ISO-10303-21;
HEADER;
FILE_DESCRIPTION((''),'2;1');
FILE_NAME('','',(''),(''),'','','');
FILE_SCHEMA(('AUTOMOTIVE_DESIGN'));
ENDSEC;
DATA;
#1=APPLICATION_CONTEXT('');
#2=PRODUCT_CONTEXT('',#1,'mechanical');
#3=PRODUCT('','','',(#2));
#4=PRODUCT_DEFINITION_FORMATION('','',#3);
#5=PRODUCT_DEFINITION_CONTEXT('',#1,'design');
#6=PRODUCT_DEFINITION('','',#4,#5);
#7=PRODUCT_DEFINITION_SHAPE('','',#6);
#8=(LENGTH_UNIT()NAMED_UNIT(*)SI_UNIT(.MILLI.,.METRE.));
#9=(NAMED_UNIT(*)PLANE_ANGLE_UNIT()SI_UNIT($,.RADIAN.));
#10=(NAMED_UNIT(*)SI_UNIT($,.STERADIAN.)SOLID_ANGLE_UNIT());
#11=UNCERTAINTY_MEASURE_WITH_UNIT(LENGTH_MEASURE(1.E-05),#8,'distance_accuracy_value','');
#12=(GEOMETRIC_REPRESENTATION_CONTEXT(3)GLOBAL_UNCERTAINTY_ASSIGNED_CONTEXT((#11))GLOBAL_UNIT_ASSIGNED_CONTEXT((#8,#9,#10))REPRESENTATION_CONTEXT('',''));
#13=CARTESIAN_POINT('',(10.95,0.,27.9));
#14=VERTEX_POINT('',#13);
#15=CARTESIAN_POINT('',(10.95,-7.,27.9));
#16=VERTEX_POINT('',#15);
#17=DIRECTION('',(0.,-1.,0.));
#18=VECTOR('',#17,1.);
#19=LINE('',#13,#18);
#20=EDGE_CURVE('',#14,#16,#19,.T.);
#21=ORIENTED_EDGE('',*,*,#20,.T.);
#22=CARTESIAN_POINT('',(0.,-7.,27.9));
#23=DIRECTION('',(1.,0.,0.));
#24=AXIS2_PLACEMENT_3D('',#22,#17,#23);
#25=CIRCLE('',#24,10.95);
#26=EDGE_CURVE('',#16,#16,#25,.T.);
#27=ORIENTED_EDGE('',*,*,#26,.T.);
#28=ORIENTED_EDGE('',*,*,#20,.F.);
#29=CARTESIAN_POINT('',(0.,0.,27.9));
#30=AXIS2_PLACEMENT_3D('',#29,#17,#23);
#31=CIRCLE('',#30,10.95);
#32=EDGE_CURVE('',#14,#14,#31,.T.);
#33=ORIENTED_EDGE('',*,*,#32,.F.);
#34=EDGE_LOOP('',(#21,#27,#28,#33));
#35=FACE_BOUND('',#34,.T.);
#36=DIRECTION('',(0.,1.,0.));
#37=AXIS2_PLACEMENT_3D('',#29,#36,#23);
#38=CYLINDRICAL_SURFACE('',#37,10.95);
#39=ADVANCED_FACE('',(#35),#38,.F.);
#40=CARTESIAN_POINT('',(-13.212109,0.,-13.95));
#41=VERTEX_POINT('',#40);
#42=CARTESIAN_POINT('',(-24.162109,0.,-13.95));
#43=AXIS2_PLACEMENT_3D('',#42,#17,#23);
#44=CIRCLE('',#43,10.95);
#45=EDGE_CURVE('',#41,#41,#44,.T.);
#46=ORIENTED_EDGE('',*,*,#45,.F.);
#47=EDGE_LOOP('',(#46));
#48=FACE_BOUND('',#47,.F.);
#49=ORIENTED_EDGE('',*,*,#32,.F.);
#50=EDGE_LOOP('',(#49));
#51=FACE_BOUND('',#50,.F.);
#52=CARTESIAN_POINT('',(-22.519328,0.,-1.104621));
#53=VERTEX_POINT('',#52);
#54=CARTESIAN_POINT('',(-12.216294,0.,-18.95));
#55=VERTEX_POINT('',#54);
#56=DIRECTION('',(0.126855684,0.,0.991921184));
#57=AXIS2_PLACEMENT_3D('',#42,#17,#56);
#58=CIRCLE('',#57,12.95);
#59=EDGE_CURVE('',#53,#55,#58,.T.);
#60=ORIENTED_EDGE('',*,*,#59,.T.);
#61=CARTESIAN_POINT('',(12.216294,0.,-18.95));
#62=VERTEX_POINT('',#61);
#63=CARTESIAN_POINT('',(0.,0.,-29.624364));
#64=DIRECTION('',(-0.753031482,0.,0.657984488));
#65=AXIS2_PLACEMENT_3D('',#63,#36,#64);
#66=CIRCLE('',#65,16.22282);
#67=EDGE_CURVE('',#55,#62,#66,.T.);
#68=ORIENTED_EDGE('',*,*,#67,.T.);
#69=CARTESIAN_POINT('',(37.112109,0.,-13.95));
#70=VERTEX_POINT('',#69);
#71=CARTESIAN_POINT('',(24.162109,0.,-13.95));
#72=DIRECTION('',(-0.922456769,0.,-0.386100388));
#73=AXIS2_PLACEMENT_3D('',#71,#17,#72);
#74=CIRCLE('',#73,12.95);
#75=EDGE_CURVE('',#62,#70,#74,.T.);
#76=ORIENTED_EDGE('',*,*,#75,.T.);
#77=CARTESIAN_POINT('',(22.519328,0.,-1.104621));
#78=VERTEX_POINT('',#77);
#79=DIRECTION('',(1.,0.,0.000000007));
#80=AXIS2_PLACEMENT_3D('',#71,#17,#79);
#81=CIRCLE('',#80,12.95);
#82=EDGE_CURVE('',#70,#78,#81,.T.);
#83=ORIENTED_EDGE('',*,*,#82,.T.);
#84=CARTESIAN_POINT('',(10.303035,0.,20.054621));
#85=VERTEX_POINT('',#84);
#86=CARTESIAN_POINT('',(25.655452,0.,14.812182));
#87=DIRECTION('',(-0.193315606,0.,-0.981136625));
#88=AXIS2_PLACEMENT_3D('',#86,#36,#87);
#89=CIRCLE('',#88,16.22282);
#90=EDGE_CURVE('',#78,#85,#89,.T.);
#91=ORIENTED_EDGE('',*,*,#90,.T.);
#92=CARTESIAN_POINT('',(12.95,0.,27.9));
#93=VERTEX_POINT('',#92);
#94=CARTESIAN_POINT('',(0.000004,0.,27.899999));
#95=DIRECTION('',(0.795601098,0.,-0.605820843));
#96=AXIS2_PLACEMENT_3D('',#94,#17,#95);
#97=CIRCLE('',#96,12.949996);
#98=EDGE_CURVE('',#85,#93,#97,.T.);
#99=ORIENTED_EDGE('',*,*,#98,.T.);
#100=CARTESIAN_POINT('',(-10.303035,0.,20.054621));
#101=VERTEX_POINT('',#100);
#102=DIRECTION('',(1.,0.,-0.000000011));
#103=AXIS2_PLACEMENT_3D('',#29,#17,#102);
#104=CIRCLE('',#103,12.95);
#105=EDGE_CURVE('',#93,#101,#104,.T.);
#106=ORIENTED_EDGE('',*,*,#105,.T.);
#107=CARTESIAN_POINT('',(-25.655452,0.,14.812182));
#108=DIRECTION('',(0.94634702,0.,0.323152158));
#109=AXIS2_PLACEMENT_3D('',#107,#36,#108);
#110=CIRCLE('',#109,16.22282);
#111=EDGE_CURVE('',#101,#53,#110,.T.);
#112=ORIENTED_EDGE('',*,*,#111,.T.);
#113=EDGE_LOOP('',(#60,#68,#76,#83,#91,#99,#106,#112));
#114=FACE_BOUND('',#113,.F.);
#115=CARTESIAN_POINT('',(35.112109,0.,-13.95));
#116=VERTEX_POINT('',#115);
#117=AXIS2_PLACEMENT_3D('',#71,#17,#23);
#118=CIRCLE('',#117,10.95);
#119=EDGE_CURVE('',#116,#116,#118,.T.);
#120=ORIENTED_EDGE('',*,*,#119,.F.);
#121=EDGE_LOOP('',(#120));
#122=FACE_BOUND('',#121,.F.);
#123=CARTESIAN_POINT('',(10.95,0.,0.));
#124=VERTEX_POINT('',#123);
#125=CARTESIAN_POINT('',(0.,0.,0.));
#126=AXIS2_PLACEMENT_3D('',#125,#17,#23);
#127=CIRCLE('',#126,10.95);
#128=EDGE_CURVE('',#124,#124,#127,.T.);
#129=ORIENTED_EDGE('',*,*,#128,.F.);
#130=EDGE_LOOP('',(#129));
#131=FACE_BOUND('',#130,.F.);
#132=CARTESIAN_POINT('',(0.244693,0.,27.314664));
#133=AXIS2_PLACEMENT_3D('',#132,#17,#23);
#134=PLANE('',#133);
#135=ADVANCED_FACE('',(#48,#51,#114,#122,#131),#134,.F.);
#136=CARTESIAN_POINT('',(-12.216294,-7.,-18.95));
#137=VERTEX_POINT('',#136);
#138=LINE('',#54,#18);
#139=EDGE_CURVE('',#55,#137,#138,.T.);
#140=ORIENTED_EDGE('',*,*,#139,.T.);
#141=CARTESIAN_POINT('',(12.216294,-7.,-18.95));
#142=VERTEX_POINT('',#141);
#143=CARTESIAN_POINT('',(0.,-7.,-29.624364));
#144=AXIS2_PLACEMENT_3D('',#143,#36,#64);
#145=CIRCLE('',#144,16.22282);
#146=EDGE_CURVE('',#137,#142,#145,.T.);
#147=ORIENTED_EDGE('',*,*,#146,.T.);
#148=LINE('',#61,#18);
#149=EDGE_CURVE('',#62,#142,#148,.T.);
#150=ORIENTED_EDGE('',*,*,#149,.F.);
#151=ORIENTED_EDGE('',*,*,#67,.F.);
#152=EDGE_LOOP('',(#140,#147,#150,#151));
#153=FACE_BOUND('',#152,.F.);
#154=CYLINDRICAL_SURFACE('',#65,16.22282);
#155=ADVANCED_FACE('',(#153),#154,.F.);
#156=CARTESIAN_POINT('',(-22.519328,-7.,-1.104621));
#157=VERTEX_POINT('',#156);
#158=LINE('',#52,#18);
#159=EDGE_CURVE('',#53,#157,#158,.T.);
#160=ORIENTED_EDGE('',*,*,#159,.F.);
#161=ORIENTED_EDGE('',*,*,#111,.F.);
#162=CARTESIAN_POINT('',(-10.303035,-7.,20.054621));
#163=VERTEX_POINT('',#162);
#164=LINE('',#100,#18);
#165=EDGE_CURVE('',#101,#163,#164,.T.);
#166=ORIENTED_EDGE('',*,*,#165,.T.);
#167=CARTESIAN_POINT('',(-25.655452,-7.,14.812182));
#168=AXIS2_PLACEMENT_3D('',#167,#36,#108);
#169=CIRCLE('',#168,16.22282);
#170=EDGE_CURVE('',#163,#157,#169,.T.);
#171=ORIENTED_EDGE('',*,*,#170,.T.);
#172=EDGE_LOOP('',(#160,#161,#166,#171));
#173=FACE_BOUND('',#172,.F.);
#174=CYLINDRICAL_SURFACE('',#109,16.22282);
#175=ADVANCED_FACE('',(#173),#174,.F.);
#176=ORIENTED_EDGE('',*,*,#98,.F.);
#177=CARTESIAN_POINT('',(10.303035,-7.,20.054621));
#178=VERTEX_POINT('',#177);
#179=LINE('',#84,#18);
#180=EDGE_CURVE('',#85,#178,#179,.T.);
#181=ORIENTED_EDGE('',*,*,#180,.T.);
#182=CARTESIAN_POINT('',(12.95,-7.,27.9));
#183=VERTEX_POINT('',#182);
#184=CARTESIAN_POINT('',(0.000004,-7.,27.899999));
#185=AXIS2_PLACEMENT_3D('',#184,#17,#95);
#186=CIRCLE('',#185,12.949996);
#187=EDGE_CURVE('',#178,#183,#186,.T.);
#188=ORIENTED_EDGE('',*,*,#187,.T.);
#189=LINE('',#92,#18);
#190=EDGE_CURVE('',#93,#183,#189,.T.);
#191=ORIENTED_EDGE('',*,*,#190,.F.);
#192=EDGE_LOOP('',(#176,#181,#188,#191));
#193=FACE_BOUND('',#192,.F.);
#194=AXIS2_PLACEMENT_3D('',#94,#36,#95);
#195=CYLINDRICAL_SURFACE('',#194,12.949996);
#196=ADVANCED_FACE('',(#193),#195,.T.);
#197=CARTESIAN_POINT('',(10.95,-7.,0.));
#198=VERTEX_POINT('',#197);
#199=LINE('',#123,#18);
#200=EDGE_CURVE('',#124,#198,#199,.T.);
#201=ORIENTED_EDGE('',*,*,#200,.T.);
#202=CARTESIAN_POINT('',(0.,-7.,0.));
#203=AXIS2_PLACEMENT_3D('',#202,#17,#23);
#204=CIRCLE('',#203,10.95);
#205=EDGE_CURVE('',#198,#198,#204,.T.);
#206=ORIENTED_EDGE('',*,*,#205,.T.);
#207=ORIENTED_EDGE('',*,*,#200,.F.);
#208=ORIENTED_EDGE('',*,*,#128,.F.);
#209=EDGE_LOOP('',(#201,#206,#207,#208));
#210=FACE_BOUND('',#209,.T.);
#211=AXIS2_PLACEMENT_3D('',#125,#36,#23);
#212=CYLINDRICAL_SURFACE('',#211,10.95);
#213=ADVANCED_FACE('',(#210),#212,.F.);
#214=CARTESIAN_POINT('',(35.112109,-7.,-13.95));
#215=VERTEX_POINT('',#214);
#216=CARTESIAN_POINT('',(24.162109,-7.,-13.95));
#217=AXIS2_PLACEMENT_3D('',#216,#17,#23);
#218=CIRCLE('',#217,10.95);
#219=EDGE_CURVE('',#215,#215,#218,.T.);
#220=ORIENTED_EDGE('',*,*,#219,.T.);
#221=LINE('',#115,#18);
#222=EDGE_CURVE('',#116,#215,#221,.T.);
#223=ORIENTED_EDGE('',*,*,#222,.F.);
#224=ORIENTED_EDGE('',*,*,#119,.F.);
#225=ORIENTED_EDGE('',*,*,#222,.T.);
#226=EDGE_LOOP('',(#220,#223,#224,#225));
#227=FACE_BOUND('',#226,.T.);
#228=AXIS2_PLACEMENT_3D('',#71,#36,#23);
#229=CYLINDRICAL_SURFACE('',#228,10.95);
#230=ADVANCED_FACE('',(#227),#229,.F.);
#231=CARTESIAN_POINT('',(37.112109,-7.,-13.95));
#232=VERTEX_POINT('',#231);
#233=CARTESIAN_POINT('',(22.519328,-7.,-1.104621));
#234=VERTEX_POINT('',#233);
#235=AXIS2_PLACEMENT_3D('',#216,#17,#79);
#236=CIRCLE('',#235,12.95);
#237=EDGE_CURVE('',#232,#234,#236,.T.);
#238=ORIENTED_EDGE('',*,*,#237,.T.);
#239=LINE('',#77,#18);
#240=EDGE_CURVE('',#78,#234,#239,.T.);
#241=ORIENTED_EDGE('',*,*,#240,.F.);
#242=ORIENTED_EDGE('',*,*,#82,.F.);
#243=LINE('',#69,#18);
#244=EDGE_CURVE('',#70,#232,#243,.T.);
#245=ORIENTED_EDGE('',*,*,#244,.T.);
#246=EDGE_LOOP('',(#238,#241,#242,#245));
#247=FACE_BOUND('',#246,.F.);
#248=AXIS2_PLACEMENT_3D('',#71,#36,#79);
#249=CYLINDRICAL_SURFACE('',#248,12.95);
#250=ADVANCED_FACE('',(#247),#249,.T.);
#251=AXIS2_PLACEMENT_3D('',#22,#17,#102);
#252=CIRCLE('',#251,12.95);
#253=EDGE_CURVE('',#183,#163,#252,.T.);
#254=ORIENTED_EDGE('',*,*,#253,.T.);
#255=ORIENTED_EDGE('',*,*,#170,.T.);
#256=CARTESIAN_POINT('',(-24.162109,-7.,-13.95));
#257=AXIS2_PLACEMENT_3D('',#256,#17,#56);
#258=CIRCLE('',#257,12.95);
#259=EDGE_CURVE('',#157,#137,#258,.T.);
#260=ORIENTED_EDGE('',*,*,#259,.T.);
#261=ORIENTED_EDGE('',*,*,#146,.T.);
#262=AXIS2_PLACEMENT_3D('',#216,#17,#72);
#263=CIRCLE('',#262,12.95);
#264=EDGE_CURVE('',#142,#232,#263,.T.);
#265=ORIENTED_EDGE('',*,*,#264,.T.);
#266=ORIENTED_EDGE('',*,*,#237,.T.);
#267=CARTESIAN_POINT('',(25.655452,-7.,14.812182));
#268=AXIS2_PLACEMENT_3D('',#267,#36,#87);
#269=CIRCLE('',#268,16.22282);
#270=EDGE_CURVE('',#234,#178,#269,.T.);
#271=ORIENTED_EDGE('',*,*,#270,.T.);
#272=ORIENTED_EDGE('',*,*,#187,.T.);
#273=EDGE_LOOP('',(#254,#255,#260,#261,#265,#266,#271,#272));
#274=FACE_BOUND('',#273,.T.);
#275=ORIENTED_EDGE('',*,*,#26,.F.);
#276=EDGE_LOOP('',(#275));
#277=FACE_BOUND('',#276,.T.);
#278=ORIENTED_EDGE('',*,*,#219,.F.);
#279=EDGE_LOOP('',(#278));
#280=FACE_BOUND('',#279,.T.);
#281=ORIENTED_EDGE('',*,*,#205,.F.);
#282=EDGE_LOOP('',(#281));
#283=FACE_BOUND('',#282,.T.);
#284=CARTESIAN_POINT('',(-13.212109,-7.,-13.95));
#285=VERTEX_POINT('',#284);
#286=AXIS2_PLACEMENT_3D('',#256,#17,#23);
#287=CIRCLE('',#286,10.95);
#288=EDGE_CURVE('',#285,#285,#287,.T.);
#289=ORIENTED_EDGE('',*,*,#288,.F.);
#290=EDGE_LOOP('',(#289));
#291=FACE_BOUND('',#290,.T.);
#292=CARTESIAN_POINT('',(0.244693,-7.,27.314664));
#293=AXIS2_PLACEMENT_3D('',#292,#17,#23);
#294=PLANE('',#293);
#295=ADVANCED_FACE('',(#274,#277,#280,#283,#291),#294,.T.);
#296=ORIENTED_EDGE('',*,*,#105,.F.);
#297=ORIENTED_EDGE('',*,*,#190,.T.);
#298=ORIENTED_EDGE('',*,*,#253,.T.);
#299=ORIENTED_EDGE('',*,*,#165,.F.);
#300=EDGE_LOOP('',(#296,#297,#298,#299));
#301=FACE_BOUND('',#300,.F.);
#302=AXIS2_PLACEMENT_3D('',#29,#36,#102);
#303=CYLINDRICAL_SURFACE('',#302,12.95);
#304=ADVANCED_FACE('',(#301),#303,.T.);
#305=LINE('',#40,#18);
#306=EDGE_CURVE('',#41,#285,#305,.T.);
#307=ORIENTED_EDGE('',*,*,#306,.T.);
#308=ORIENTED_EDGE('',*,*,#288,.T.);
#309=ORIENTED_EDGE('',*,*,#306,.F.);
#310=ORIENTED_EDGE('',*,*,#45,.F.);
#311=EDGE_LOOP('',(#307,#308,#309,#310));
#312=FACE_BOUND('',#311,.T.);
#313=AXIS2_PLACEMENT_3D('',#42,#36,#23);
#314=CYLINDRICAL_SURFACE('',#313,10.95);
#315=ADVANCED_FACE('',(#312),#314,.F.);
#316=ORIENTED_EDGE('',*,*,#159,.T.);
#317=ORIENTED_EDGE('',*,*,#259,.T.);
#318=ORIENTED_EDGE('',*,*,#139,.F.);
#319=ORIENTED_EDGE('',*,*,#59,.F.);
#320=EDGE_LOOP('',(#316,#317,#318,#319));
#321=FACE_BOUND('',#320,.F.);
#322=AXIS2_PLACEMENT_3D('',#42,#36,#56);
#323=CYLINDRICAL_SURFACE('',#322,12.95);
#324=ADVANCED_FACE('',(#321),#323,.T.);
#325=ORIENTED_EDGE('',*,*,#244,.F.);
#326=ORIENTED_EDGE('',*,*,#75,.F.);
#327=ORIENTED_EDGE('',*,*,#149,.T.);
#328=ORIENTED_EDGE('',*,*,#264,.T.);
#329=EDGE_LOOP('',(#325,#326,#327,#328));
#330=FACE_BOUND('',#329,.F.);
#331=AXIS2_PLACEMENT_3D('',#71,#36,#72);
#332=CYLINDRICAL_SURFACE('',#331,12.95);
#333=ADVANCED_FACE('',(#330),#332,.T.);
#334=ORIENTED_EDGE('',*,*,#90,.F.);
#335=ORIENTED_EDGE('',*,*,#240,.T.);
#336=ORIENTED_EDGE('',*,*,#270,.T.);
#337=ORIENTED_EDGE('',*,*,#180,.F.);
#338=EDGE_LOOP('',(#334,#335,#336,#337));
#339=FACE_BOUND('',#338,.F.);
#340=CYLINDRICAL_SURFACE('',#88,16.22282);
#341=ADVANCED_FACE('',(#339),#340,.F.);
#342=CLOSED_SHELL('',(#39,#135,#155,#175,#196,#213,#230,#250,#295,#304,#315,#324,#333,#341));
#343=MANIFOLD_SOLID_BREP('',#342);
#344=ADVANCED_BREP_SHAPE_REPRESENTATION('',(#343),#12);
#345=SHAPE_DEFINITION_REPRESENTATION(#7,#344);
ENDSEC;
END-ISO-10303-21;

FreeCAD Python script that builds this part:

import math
import FreeCAD as App
import Part
import Sketcher

doc = App.newDocument("Part")
params = doc.addObject("Spreadsheet::Sheet", "Params")
for row, (alias, value) in enumerate([
    ("sketch1_diameter", "21.9 mm"),
    ("sketch1_radius", "12.95 mm"),
    ("pad1_length", "7 mm"),
], start=1):
    params.set(f"A{row}", alias)
    params.set(f"B{row}", "=" + value)
    params.setAlias(f"B{row}", alias)

body = doc.addObject("PartDesign::Body", "Body")

sketch1 = doc.addObject("Sketcher::SketchObject", "Sketch")
body.addObject(sketch1)
sketch1.AttachmentSupport = (doc.XZ_Plane, [""])
sketch1.MapMode = "FlatFace"
sketch1.addGeometry([
    Part.ArcOfCircle(Part.Circle(App.Vector(0, 28, 0), App.Vector(0, 0, 1), 13), math.radians(-37), math.radians(0)),
    Part.ArcOfCircle(Part.Circle(App.Vector(0, 28, 0), App.Vector(0, 0, 1), 13), math.radians(0), math.radians(217)),
    Part.ArcOfCircle(Part.Circle(App.Vector(-26, 15, 0), App.Vector(0, 0, 1), 16), math.radians(-79), math.radians(19)),
    Part.ArcOfCircle(Part.Circle(App.Vector(-24, -14, 0), App.Vector(0, 0, 1), 13), math.radians(83), math.radians(337)),
    Part.ArcOfCircle(Part.Circle(App.Vector(0, -30, 0), App.Vector(0, 0, 1), 16), math.radians(41), math.radians(139)),
    Part.ArcOfCircle(Part.Circle(App.Vector(24, -14, 0), App.Vector(0, 0, 1), 13), math.radians(-157), math.radians(0)),
    Part.ArcOfCircle(Part.Circle(App.Vector(24, -14, 0), App.Vector(0, 0, 1), 13), math.radians(0), math.radians(97)),
    Part.ArcOfCircle(Part.Circle(App.Vector(26, 15, 0), App.Vector(0, 0, 1), 16), math.radians(161), math.radians(259)),
    Part.Circle(App.Vector(-24, -14, 0), App.Vector(0, 0, 1), 11),
    Part.Circle(App.Vector(24, -14, 0), App.Vector(0, 0, 1), 11),
    Part.Circle(App.Vector(0, 0, 0), App.Vector(0, 0, 1), 11),
    Part.Circle(App.Vector(0, 28, 0), App.Vector(0, 0, 1), 11),
], False)
sketch1.addConstraint([
    Sketcher.Constraint("Tangent", 0, 2, 1, 1),
    Sketcher.Constraint("Coincident", 1, 2, 2, 2),
    Sketcher.Constraint("Coincident", 2, 1, 3, 1),
    Sketcher.Constraint("Coincident", 3, 2, 4, 2),
    Sketcher.Constraint("Coincident", 4, 1, 5, 1),
    Sketcher.Constraint("Tangent", 5, 2, 6, 1),
    Sketcher.Constraint("Coincident", 6, 2, 7, 2),
    Sketcher.Constraint("Coincident", 7, 1, 0, 1),
    Sketcher.Constraint("Coincident", 10, 3, -1, 1),
    Sketcher.Constraint("Coincident", 8, 3, 3, 3),
    Sketcher.Constraint("Coincident", 9, 3, 5, 3),
    Sketcher.Constraint("Coincident", 11, 3, 0, 3),
    Sketcher.Constraint("Equal", 1, 3),
    Sketcher.Constraint("Equal", 2, 4),
    Sketcher.Constraint("Equal", 3, 5),
    Sketcher.Constraint("Equal", 5, 6),
    Sketcher.Constraint("Equal", 4, 7),
    Sketcher.Constraint("Equal", 8, 9),
    Sketcher.Constraint("Equal", 9, 10),
    Sketcher.Constraint("Equal", 10, 11),
    Sketcher.Constraint("Symmetric", 3, 3, 5, 3, -2),
    Sketcher.Constraint("Symmetric", 2, 3, 7, 3, -2),
    Sketcher.Constraint("PointOnObject", 1, 3, -2),
    Sketcher.Constraint("PointOnObject", 4, 3, -2),
    Sketcher.Constraint("PointOnObject", 11, 3, -2),
    Sketcher.Constraint("Horizontal", 11, 3, 0, 2),
    Sketcher.Constraint("Horizontal", 9, 3, 5, 2),
    Sketcher.Constraint("Diameter", 8, 21.9),
    Sketcher.Constraint("Radius", 1, 12.95),
    Sketcher.Constraint("DistanceY", 3, 2, 8, 3, 5.0),
    Sketcher.Constraint("DistanceY", -1, 1, 0, 3, 27.899999),
    Sketcher.Constraint("DistanceY", 3, 3, -1, 1, 13.95),
    Sketcher.Constraint("Radius", 2, 16.22282),
    Sketcher.Constraint("DistanceY", -1, 1, 2, 3, 14.812182),
    Sketcher.Constraint("DistanceX", 3, 3, -1, 1, 24.162109),
    Sketcher.Constraint("DistanceY", -1, 1, 1, 2, 20.054621),
])
sketch1.setExpression("Constraints[27]", "Params.sketch1_diameter")
sketch1.setExpression("Constraints[28]", "Params.sketch1_radius")
pad1 = doc.addObject("PartDesign::Pad", "Pad")
body.addObject(pad1)
pad1.Profile = sketch1
pad1.setExpression("Length", "Params.pad1_length")

doc.recompute()
